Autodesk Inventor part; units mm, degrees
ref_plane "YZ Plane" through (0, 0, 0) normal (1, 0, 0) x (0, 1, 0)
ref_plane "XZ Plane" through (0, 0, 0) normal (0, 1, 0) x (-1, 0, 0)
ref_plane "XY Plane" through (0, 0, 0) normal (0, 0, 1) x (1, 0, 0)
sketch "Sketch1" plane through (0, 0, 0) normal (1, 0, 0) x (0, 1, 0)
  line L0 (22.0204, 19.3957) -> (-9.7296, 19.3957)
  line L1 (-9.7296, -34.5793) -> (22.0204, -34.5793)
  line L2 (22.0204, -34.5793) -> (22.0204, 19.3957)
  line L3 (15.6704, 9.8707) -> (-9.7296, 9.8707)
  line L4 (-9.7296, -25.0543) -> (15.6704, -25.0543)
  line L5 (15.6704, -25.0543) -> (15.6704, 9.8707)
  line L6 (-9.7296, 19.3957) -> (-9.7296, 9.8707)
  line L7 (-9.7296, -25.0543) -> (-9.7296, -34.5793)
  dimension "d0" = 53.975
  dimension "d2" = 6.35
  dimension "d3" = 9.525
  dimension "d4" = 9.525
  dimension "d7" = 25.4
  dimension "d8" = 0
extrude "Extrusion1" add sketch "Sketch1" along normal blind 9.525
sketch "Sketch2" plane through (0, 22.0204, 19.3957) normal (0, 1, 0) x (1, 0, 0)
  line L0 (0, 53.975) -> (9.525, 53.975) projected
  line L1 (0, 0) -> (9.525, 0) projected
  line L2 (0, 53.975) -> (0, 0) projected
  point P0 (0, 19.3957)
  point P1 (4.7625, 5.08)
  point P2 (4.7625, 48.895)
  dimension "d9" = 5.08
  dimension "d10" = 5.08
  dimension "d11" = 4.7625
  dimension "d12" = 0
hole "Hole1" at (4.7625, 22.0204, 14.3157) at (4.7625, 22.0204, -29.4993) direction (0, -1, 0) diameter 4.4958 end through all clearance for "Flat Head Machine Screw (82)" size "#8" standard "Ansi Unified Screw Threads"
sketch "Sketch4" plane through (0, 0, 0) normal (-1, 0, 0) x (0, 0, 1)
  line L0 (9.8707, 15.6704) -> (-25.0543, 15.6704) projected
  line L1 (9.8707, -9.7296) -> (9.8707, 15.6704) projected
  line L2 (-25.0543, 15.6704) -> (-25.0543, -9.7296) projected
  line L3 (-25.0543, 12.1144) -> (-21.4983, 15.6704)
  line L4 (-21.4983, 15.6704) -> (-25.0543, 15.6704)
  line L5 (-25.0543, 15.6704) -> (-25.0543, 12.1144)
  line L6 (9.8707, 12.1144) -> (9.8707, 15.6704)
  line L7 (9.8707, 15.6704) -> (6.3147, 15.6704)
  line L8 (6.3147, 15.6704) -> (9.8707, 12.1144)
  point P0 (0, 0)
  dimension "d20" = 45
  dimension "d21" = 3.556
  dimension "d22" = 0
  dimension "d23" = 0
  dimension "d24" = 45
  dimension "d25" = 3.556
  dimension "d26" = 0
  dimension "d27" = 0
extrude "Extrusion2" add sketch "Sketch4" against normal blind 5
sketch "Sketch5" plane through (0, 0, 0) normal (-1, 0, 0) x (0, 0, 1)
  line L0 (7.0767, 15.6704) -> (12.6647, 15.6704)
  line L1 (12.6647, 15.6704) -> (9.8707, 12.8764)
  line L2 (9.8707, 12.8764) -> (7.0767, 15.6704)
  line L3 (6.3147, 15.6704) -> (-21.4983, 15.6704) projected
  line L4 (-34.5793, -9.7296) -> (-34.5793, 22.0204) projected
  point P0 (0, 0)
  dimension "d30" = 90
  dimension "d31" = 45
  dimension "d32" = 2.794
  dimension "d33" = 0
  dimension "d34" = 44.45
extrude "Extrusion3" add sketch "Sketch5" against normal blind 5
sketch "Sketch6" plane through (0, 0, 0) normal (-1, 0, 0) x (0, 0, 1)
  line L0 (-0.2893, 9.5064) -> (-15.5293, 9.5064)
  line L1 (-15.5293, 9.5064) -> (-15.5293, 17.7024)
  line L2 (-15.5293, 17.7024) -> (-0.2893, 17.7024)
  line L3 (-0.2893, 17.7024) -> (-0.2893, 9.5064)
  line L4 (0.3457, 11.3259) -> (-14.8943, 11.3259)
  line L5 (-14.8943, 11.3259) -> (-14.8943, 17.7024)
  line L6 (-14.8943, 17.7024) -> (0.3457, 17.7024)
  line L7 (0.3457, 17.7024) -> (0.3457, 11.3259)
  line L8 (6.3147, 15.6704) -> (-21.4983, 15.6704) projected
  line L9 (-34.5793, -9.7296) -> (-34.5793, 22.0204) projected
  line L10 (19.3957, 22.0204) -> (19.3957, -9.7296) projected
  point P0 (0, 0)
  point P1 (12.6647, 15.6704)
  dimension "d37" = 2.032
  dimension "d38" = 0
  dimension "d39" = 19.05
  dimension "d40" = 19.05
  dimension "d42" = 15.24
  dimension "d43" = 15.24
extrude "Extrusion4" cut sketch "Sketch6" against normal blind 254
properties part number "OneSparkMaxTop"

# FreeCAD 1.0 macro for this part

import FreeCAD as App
import Part
import Sketcher
from FreeCAD import Vector
Q = App.Units.Quantity


def add_polygon(sketch, points):
    """Adds a closed chain of lines whose ends are joined by coincident constraints."""
    first, n = sketch.GeometryCount, len(points)
    for a, b in zip(points, points[1:] + points[:1]):
        sketch.addGeometry(Part.LineSegment(App.Vector(*a, 0), App.Vector(*b, 0)), False)
    for i in range(n):
        sketch.addConstraint(Sketcher.Constraint("Coincident", first + i, 2, first + (i + 1) % n, 1))

doc = App.newDocument("Part")
body = doc.addObject("PartDesign::Body", "Body")

# Sketch on YZ plane
sketch1 = body.newObject("Sketcher::SketchObject", "Sketch")
sketch1.AttachmentSupport = (doc.getObject("YZ_Plane"), [""])
sketch1.MapMode = "FlatFace"
add_polygon(sketch1, [(22, -35), (22, 19), (-10, 19), (-10, 10), (16, 10), (16, -25), (-10, -25), (-10, -35)])  # lines 0-7
sketch1.addConstraint(Sketcher.Constraint("Vertical", 0))
sketch1.addConstraint(Sketcher.Constraint("Horizontal", 1))
sketch1.addConstraint(Sketcher.Constraint("Vertical", 2))
sketch1.addConstraint(Sketcher.Constraint("Horizontal", 3))
sketch1.addConstraint(Sketcher.Constraint("Vertical", 4))
sketch1.addConstraint(Sketcher.Constraint("Horizontal", 5))
sketch1.addConstraint(Sketcher.Constraint("Vertical", 6))
sketch1.addConstraint(Sketcher.Constraint("Horizontal", 7))
sketch1.addConstraint(Sketcher.Constraint("Vertical", 2, 2, 5, 2))
sketch1.addConstraint(Sketcher.Constraint("Equal", 2, 6))
sketch1.addConstraint(Sketcher.Constraint("DistanceX", 3, 1, 3, 2, Q("1 in")))
sketch1.addConstraint(Sketcher.Constraint("DistanceY", 0, 1, 0, 2, Q("2.125 in")))
sketch1.addConstraint(Sketcher.Constraint("DistanceY", 2, 2, 2, 1, Q("0.375 in")))
sketch1.addConstraint(Sketcher.Constraint("DistanceX", 3, 2, 0, 2, Q("0.25 in")))
sketch1.addConstraint(Sketcher.Constraint("DistanceY", -1, 1, 0, 2, Q("0.7636 in")))
sketch1.addConstraint(Sketcher.Constraint("DistanceX", -1, 1, 0, 2, Q("22.0204 mm")))
pad1 = body.newObject("PartDesign::Pad", "Pad")
pad1.Profile = sketch1
pad1.Length = Q("0.375 in")

# Sketch on XZ plane
sketch2 = body.newObject("Sketcher::SketchObject", "Sketch001")
sketch2.AttachmentSupport = (doc.getObject("XZ_Plane"), [""])
sketch2.MapMode = "FlatFace"
sketch2.AttachmentOffset = App.Placement(Vector(0, 0, -22.0204), App.Rotation())
sketch2.addGeometry(Part.Circle(Vector(4.8, 14.3, 0), Vector(0, 0, 1), 2.2), False)
sketch2.addGeometry(Part.Circle(Vector(4.8, -29.5, 0), Vector(0, 0, 1), 2.2), False)
sketch2.addConstraint(Sketcher.Constraint("Equal", 0, 1))
sketch2.addConstraint(Sketcher.Constraint("Vertical", 0, 3, 1, 3))
sketch2.addConstraint(Sketcher.Constraint("Diameter", 0, Q("0.177 in")))
sketch2.addConstraint(Sketcher.Constraint("DistanceX", -1, 1, 0, 3, Q("0.1875 in")))
sketch2.addConstraint(Sketcher.Constraint("DistanceY", 1, 3, 0, 3, Q("1.725 in")))
sketch2.addConstraint(Sketcher.Constraint("DistanceY", -1, 1, 0, 3, Q("0.5636 in")))
doc.recompute()
hole = body.newObject("PartDesign::Hole", "Hole")
hole.Profile = sketch2
hole.ThreadType = "None"
hole.Diameter = Q("0.177 in")
hole.DepthType = "ThroughAll"
hole.Reversed = True

# Sketch on YZ plane
sketch3 = body.newObject("Sketcher::SketchObject", "Sketch002")
sketch3.AttachmentSupport = (doc.getObject("YZ_Plane"), [""])
sketch3.MapMode = "FlatFace"
add_polygon(sketch3, [(12.1, 9.9), (15.7, 9.9), (15.7, 6.3)])  # lines 0-2
add_polygon(sketch3, [(12.1, -25.1), (15.7, -21.5), (15.7, -25.1)])  # lines 3-5
sketch3.addConstraint(Sketcher.Constraint("Horizontal", 0))
sketch3.addConstraint(Sketcher.Constraint("Vertical", 1))
sketch3.addConstraint(Sketcher.Constraint("Vertical", 4))
sketch3.addConstraint(Sketcher.Constraint("Horizontal", 5))
sketch3.addConstraint(Sketcher.Constraint("Perpendicular", 2, 3))
sketch3.addConstraint(Sketcher.Constraint("Vertical", 1, 2, 3, 2))
sketch3.addConstraint(Sketcher.Constraint("Vertical", 2, 2, 5, 2))
sketch3.addConstraint(Sketcher.Constraint("Equal", 5, 1))
sketch3.addConstraint(Sketcher.Constraint("DistanceX", 0, 1, 0, 2, Q("0.14 in")))
sketch3.addConstraint(Sketcher.Constraint("DistanceY", 3, 2, 1, 2, Q("1.095 in")))
sketch3.addConstraint(Sketcher.Constraint("DistanceY", -1, 1, 0, 2, Q("0.3886 in")))
sketch3.addConstraint(Sketcher.Constraint("DistanceX", -1, 1, 0, 2, Q("15.6704 mm")))
pad2 = body.newObject("PartDesign::Pad", "Pad001")
pad2.Profile = sketch3
pad2.Length = 5

# Sketch on YZ plane
sketch4 = body.newObject("Sketcher::SketchObject", "Sketch003")
sketch4.AttachmentSupport = (doc.getObject("YZ_Plane"), [""])
sketch4.MapMode = "FlatFace"
add_polygon(sketch4, [(15.7, 12.7), (15.7, 7.1), (12.9, 9.9)])  # lines 0-2
sketch4.addConstraint(Sketcher.Constraint("Vertical", 0))
sketch4.addConstraint(Sketcher.Constraint("Perpendicular", 1, 2))
sketch4.addConstraint(Sketcher.Constraint("Equal", 1, 2))
sketch4.addConstraint(Sketcher.Constraint("DistanceX", 1, 2, 0, 2, Q("0.11 in")))
sketch4.addConstraint(Sketcher.Constraint("DistanceY", -1, 1, 0, 2, Q("0.2786 in")))
sketch4.addConstraint(Sketcher.Constraint("DistanceX", -1, 1, 0, 2, Q("15.6704 mm")))
pad3 = body.newObject("PartDesign::Pad", "Pad002")
pad3.Profile = sketch4
pad3.Length = 5

# Sketch on YZ plane
sketch5 = body.newObject("Sketcher::SketchObject", "Sketch004")
sketch5.AttachmentSupport = (doc.getObject("YZ_Plane"), [""])
sketch5.MapMode = "FlatFace"
add_polygon(sketch5, [(9.5, -15.5), (9.5, -0.3), (11.3, -0.3), (11.3, 0.3), (17.7, 0.3), (17.7, -15.5)])  # lines 0-5
sketch5.addConstraint(Sketcher.Constraint("Vertical", 0))
sketch5.addConstraint(Sketcher.Constraint("Horizontal", 1))
sketch5.addConstraint(Sketcher.Constraint("Vertical", 2))
sketch5.addConstraint(Sketcher.Constraint("Horizontal", 3))
sketch5.addConstraint(Sketcher.Constraint("Vertical", 4))
sketch5.addConstraint(Sketcher.Constraint("Horizontal", 5))
sketch5.addConstraint(Sketcher.Constraint("DistanceY", 0, 1, 0, 2, Q("0.6 in")))
sketch5.addConstraint(Sketcher.Constraint("DistanceY", 2, 1, 2, 2, Q("0.025 in")))
sketch5.addConstraint(Sketcher.Constraint("DistanceX", 1, 1, 1, 2, Q("1.8195 mm")))
sketch5.addConstraint(Sketcher.Constraint("DistanceX", 3, 1, 3, 2, Q("6.3765 mm")))
sketch5.addConstraint(Sketcher.Constraint("DistanceY", 0, 2, -1, 1, Q("0.0114 in")))
sketch5.addConstraint(Sketcher.Constraint("DistanceX", -1, 1, 1, 2, Q("0.4459 in")))
pocket1 = body.newObject("PartDesign::Pocket", "Pocket")
pocket1.Profile = sketch5
pocket1.Length = Q("10 in")
pocket1.Reversed = True

doc.recompute()
